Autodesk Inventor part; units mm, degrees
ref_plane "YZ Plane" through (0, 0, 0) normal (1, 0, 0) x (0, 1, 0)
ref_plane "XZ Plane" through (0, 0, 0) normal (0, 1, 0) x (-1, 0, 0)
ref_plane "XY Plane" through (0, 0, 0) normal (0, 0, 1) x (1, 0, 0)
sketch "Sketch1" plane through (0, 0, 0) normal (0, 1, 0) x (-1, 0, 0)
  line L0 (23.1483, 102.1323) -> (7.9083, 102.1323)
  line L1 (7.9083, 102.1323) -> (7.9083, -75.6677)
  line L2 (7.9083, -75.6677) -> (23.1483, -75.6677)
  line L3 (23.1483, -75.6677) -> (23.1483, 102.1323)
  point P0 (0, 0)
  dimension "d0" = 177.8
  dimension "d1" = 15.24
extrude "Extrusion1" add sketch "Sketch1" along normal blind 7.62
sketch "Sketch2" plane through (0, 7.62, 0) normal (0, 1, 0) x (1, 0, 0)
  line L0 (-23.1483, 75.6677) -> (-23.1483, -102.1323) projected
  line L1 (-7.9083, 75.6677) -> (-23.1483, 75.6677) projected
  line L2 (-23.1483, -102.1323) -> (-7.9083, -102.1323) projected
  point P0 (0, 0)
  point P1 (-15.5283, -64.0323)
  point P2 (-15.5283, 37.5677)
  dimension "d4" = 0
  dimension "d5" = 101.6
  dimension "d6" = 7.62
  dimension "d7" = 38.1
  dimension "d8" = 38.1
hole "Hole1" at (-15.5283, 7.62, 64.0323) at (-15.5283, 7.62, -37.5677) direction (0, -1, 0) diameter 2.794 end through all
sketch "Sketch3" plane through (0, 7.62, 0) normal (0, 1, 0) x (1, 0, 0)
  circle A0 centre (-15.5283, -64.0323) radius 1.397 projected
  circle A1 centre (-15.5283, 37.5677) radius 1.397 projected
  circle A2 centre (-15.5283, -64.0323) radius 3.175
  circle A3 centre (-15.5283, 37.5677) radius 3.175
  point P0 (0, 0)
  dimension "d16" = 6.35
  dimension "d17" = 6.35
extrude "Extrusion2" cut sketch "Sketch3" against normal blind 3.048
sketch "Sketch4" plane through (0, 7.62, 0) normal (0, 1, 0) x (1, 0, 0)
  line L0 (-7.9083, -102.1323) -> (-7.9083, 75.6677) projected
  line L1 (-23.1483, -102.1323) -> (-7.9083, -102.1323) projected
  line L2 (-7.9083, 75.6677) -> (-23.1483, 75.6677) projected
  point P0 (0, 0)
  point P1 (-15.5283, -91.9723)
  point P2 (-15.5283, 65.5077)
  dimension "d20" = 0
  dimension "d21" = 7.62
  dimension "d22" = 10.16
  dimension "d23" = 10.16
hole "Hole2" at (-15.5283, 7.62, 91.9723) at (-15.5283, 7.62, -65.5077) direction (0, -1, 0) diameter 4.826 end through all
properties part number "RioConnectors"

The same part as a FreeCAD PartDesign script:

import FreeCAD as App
import Part
import Sketcher
from FreeCAD import Vector
Q = App.Units.Quantity

doc = App.newDocument("Part")
body = doc.addObject("PartDesign::Body", "Body")

sketch1 = body.newObject("Sketcher::SketchObject", "Sketch")
sketch1.AttachmentSupport = (doc.getObject("XZ_Plane"), [""])
sketch1.MapMode = "FlatFace"
sketch1.addGeometry([
    Part.LineSegment(Vector(-23, -76, 0), Vector(-23, 102, 0)),
    Part.LineSegment(Vector(-23, 102, 0), Vector(-8, 102, 0)),
    Part.LineSegment(Vector(-8, 102, 0), Vector(-8, -76, 0)),
    Part.LineSegment(Vector(-8, -76, 0), Vector(-23, -76, 0)),
], False)
sketch1.addConstraint([
    Sketcher.Constraint("Coincident", 0, 2, 1, 1),
    Sketcher.Constraint("Coincident", 1, 2, 2, 1),
    Sketcher.Constraint("Coincident", 2, 2, 3, 1),
    Sketcher.Constraint("Coincident", 3, 2, 0, 1),
    Sketcher.Constraint("Vertical", 0),
    Sketcher.Constraint("Horizontal", 1),
    Sketcher.Constraint("Vertical", 2),
    Sketcher.Constraint("Horizontal", 3),
    Sketcher.Constraint("DistanceY", 0, 1, 0, 2, Q("7 in")),
    Sketcher.Constraint("DistanceX", 1, 1, 1, 2, Q("0.6 in")),
    Sketcher.Constraint("DistanceX", 0, 2, -1, 1, Q("23.1483 mm")),
    Sketcher.Constraint("DistanceY", -1, 1, 0, 2, Q("102.1323 mm")),
])
pad1 = body.newObject("PartDesign::Pad", "Pad")
pad1.Profile = sketch1
pad1.Length = Q("0.3 in")
pad1.Reversed = True

sketch2 = body.newObject("Sketcher::SketchObject", "Sketch001")
sketch2.AttachmentSupport = (doc.getObject("XZ_Plane"), [""])
sketch2.MapMode = "FlatFace"
sketch2.AttachmentOffset = App.Placement(Vector(0, 0, -0.3 * 25.4), App.Rotation())
sketch2.addGeometry([
    Part.Circle(Vector(-15.5, 64, 0), Vector(0, 0, 1), 1.4),
    Part.Circle(Vector(-15.5, -37.6, 0), Vector(0, 0, 1), 1.4),
], False)
sketch2.addConstraint([
    Sketcher.Constraint("Equal", 0, 1),
    Sketcher.Constraint("Vertical", 0, 3, 1, 3),
    Sketcher.Constraint("Diameter", 0, Q("0.11 in")),
    Sketcher.Constraint("DistanceY", 1, 3, 0, 3, Q("4 in")),
    Sketcher.Constraint("DistanceX", 0, 3, -1, 1, Q("15.5283 mm")),
    Sketcher.Constraint("DistanceY", -1, 1, 0, 3, Q("64.0323 mm")),
])
doc.recompute()
hole = body.newObject("PartDesign::Hole", "Hole")
hole.Profile = sketch2
hole.ThreadType = "None"
hole.Diameter = Q("0.11 in")
hole.DepthType = "ThroughAll"
hole.Reversed = True

sketch3 = body.newObject("Sketcher::SketchObject", "Sketch002")
sketch3.AttachmentSupport = (doc.getObject("XZ_Plane"), [""])
sketch3.MapMode = "FlatFace"
sketch3.AttachmentOffset = App.Placement(Vector(0, 0, -0.3 * 25.4), App.Rotation())
sketch3.addGeometry([
    Part.Circle(Vector(-15.5, 64, 0), Vector(0, 0, 1), 3.2),
    Part.Circle(Vector(-15.5, 64, 0), Vector(0, 0, 1), 1.4),
    Part.Circle(Vector(-15.5, -37.6, 0), Vector(0, 0, 1), 3.2),
    Part.Circle(Vector(-15.5, -37.6, 0), Vector(0, 0, 1), 1.4),
], False)
sketch3.addConstraint([
    Sketcher.Constraint("Coincident", 1, 3, 0, 3),
    Sketcher.Constraint("Coincident", 3, 3, 2, 3),
    Sketcher.Constraint("Equal", 0, 2),
    Sketcher.Constraint("Equal", 1, 3),
    Sketcher.Constraint("Vertical", 1, 3, 2, 3),
    Sketcher.Constraint("Diameter", 0, Q("0.25 in")),
    Sketcher.Constraint("Diameter", 1, Q("0.11 in")),
    Sketcher.Constraint("DistanceY", 2, 3, 0, 3, Q("4 in")),
    Sketcher.Constraint("DistanceX", 0, 3, -1, 1, Q("15.5283 mm")),
    Sketcher.Constraint("DistanceY", -1, 1, 0, 3, Q("64.0323 mm")),
])
pocket1 = body.newObject("PartDesign::Pocket", "Pocket")
pocket1.Profile = sketch3
pocket1.Length = Q("0.12 in")
pocket1.Reversed = True

sketch4 = body.newObject("Sketcher::SketchObject", "Sketch003")
sketch4.AttachmentSupport = (doc.getObject("XZ_Plane"), [""])
sketch4.MapMode = "FlatFace"
sketch4.AttachmentOffset = App.Placement(Vector(0, 0, -0.3 * 25.4), App.Rotation())
sketch4.addGeometry([
    Part.Circle(Vector(-15.5, 92, 0), Vector(0, 0, 1), 2.4),
    Part.Circle(Vector(-15.5, -65.5, 0), Vector(0, 0, 1), 2.4),
], False)
sketch4.addConstraint([
    Sketcher.Constraint("Equal", 0, 1),
    Sketcher.Constraint("Vertical", 0, 3, 1, 3),
    Sketcher.Constraint("Diameter", 0, Q("0.19 in")),
    Sketcher.Constraint("DistanceY", 1, 3, 0, 3, Q("6.2 in")),
    Sketcher.Constraint("DistanceX", 0, 3, -1, 1, Q("15.5283 mm")),
    Sketcher.Constraint("DistanceY", -1, 1, 0, 3, Q("91.9723 mm")),
])
doc.recompute()
hole2 = body.newObject("PartDesign::Hole", "Hole001")
hole2.Profile = sketch4
hole2.ThreadType = "None"
hole2.Diameter = Q("0.19 in")
hole2.DepthType = "ThroughAll"
hole2.Reversed = True

doc.recompute()
